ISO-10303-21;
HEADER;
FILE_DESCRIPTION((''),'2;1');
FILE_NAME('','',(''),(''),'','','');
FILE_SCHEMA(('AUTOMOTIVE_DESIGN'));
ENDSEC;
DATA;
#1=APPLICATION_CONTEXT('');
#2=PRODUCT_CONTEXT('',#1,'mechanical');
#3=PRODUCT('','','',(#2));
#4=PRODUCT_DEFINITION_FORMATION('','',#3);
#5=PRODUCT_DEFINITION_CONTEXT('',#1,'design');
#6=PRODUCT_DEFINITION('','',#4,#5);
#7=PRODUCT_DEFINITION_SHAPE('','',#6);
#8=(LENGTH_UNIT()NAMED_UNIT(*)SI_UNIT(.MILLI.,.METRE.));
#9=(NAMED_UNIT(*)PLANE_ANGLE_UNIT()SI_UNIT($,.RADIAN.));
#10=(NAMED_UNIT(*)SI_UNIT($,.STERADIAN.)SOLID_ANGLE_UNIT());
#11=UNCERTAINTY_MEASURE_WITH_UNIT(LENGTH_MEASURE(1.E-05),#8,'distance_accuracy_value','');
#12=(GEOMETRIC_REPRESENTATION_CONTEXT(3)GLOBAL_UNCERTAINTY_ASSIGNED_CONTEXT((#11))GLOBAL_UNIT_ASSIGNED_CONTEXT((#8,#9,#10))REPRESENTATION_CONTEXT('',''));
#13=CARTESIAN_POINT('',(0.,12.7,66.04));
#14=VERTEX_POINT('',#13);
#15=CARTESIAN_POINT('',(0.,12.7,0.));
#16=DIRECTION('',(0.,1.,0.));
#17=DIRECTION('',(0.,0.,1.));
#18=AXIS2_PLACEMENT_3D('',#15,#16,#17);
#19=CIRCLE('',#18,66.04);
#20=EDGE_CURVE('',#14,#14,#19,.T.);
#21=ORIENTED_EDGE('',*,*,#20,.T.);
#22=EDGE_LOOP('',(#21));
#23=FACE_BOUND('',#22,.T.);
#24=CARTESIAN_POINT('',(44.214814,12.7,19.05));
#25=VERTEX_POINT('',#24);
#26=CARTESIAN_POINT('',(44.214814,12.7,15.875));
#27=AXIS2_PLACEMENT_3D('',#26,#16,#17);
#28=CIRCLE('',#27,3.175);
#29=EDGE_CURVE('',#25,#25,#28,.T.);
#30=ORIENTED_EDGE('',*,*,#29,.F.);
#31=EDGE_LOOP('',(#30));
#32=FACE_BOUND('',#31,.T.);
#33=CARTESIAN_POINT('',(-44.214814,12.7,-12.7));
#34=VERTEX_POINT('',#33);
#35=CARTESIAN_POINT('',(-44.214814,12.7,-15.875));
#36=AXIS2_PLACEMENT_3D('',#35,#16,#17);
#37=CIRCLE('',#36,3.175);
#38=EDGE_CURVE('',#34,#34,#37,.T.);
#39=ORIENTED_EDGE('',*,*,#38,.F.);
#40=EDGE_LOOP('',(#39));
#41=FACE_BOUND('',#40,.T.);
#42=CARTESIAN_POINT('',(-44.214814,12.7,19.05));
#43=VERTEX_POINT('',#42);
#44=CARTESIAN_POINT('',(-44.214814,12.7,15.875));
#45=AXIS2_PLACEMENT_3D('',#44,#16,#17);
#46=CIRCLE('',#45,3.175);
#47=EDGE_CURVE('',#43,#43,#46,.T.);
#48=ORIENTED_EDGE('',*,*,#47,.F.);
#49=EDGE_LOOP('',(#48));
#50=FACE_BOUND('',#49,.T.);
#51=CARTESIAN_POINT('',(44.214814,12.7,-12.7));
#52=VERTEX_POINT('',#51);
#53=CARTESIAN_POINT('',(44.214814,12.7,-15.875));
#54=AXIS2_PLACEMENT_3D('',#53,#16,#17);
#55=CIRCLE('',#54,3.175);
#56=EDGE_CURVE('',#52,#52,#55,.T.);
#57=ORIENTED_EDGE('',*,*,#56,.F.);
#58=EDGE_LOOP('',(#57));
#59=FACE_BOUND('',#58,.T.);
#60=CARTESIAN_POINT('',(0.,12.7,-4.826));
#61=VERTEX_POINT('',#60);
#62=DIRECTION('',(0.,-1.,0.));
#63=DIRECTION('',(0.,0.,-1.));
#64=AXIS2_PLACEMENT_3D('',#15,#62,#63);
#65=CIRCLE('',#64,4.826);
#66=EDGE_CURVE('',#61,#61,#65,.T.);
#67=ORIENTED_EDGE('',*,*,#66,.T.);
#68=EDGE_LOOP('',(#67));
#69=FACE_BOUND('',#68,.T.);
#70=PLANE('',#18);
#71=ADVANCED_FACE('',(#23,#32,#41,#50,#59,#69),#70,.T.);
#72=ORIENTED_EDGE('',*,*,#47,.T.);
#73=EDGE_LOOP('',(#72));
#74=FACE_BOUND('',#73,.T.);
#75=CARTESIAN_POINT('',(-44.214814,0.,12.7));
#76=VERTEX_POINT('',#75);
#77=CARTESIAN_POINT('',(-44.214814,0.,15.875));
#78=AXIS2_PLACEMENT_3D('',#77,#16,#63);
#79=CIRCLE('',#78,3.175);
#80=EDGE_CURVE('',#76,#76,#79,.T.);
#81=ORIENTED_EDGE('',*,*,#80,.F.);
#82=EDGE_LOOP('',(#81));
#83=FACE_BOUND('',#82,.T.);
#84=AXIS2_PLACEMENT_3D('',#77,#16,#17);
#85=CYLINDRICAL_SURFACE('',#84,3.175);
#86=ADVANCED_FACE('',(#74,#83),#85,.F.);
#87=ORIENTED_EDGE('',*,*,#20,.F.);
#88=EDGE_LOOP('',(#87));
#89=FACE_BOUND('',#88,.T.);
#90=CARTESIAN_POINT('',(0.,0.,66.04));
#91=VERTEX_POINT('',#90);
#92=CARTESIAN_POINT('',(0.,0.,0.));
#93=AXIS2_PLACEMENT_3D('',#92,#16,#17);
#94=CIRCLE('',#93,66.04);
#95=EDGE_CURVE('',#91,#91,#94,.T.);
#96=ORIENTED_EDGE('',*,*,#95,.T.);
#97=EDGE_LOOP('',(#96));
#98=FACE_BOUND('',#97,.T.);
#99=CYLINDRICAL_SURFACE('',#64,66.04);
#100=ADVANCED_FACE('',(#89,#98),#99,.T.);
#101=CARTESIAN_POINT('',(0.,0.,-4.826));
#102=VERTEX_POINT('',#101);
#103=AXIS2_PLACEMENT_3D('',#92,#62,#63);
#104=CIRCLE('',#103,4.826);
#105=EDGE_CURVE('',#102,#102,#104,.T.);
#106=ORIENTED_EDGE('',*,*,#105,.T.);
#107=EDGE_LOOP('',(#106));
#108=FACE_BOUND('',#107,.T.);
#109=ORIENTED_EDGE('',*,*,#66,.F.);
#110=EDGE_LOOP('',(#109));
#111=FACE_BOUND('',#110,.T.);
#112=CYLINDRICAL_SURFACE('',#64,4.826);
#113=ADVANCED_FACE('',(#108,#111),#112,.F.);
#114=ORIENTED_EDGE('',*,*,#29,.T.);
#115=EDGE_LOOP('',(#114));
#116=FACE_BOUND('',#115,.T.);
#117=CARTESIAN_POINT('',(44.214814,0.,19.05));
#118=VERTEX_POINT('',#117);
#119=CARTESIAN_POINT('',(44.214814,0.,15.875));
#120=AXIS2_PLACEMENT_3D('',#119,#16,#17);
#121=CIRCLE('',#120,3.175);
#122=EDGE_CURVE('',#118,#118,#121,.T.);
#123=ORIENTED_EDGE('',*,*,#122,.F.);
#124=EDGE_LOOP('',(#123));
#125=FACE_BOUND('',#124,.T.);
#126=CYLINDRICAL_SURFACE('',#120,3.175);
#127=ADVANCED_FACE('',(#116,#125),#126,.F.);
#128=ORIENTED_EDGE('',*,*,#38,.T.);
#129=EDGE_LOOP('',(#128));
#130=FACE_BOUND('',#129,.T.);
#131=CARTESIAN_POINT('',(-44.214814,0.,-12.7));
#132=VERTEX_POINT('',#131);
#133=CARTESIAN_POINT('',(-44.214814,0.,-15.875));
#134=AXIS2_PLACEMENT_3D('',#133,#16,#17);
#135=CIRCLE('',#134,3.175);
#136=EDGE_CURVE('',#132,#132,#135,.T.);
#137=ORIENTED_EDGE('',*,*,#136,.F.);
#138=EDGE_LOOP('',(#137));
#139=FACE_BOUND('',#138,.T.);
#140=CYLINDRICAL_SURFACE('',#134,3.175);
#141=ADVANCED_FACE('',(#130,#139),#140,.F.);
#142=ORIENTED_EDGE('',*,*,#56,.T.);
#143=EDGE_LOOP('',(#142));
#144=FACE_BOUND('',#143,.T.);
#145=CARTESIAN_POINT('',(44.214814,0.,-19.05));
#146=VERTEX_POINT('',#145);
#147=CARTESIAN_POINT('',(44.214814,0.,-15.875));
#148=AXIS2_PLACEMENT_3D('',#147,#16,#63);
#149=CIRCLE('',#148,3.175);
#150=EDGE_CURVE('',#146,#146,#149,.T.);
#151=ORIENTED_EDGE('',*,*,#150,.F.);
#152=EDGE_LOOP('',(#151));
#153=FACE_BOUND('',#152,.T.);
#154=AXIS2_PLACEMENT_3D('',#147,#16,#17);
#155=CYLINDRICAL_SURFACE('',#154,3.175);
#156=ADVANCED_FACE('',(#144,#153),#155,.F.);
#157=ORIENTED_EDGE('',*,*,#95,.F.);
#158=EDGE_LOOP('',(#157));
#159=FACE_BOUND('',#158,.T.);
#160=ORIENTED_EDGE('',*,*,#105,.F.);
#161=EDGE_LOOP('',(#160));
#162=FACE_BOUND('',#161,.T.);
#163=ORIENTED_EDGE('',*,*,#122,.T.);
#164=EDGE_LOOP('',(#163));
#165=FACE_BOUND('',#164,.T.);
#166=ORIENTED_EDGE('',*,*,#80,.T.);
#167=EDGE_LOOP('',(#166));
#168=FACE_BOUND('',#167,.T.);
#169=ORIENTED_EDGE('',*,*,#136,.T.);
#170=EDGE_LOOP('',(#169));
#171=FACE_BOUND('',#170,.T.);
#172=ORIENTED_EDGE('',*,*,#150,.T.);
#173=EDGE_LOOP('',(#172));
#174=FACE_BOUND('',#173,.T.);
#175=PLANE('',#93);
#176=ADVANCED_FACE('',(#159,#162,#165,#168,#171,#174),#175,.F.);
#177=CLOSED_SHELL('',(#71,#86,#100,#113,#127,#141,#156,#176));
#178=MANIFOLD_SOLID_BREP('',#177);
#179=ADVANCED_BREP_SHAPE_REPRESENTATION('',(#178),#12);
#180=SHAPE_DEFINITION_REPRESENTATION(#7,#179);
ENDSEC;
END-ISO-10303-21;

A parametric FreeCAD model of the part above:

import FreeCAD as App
import Part
import Sketcher
Q = App.Units.Quantity

doc = App.newDocument("Part")
body = doc.addObject("PartDesign::Body", "Body")

# Sketch on XZ plane
sketch1 = body.newObject("Sketcher::SketchObject", "Sketch")
sketch1.AttachmentSupport = (doc.getObject("XZ_Plane"), [""])
sketch1.MapMode = "FlatFace"
sketch1.addGeometry(Part.Circle(App.Vector(0, 0, 0), App.Vector(0, 0, 1), 66), False)
sketch1.addConstraint([
    Sketcher.Constraint("Coincident", 0, 3, -1, 1),
    Sketcher.Constraint("Diameter", 0, Q("5.2 in")),
])
pad1 = body.newObject("PartDesign::Pad", "Pad")
pad1.Profile = sketch1
pad1.Length = Q("0.5 in")
pad1.Reversed = True

# Sketch on XZ plane
sketch2 = body.newObject("Sketcher::SketchObject", "Sketch001")
sketch2.AttachmentSupport = (doc.getObject("XZ_Plane"), [""])
sketch2.MapMode = "FlatFace"
sketch2.AttachmentOffset = App.Placement(App.Vector(0, 0, -0.5 * 25.4), App.Rotation())
sketch2.addGeometry([
    Part.Circle(App.Vector(-44.2, -15.9, 0), App.Vector(0, 0, 1), 3.2),
    Part.Circle(App.Vector(-44.2, 15.9, 0), App.Vector(0, 0, 1), 3.2),
    Part.Circle(App.Vector(44.2, 15.9, 0), App.Vector(0, 0, 1), 3.2),
    Part.Circle(App.Vector(44.2, -15.9, 0), App.Vector(0, 0, 1), 3.2),
], False)
sketch2.addConstraint([
    Sketcher.Constraint("Equal", 0, 1),
    Sketcher.Constraint("Equal", 1, 2),
    Sketcher.Constraint("Equal", 2, 3),
    Sketcher.Constraint("Symmetric", 0, 3, 2, 3, -1, 1),
    Sketcher.Constraint("Symmetric", 1, 3, 3, 3, -1, 1),
    Sketcher.Constraint("Symmetric", 1, 3, 2, 3, -2),
    Sketcher.Constraint("Diameter", 0, Q("0.25 in")),
    Sketcher.Constraint("DistanceY", 0, 3, 1, 3, Q("1.25 in")),
    Sketcher.Constraint("DistanceX", 0, 3, -1, 1, Q("44.214814 mm")),
])
pocket1 = body.newObject("PartDesign::Pocket", "Pocket")
pocket1.Profile = sketch2
pocket1.Type = "ThroughAll"
pocket1.Midplane = True

# Sketch on XZ plane
sketch3 = body.newObject("Sketcher::SketchObject", "Sketch002")
sketch3.AttachmentSupport = (doc.getObject("XZ_Plane"), [""])
sketch3.MapMode = "FlatFace"
sketch3.addGeometry(Part.Circle(App.Vector(0, 0, 0), App.Vector(0, 0, 1), 4.8), False)
sketch3.addConstraint([
    Sketcher.Constraint("Coincident", 0, 3, -1, 1),
    Sketcher.Constraint("Diameter", 0, Q("0.38 in")),
])
pocket2 = body.newObject("PartDesign::Pocket", "Pocket001")
pocket2.Profile = sketch3
pocket2.Type = "ThroughAll"

doc.recompute()
